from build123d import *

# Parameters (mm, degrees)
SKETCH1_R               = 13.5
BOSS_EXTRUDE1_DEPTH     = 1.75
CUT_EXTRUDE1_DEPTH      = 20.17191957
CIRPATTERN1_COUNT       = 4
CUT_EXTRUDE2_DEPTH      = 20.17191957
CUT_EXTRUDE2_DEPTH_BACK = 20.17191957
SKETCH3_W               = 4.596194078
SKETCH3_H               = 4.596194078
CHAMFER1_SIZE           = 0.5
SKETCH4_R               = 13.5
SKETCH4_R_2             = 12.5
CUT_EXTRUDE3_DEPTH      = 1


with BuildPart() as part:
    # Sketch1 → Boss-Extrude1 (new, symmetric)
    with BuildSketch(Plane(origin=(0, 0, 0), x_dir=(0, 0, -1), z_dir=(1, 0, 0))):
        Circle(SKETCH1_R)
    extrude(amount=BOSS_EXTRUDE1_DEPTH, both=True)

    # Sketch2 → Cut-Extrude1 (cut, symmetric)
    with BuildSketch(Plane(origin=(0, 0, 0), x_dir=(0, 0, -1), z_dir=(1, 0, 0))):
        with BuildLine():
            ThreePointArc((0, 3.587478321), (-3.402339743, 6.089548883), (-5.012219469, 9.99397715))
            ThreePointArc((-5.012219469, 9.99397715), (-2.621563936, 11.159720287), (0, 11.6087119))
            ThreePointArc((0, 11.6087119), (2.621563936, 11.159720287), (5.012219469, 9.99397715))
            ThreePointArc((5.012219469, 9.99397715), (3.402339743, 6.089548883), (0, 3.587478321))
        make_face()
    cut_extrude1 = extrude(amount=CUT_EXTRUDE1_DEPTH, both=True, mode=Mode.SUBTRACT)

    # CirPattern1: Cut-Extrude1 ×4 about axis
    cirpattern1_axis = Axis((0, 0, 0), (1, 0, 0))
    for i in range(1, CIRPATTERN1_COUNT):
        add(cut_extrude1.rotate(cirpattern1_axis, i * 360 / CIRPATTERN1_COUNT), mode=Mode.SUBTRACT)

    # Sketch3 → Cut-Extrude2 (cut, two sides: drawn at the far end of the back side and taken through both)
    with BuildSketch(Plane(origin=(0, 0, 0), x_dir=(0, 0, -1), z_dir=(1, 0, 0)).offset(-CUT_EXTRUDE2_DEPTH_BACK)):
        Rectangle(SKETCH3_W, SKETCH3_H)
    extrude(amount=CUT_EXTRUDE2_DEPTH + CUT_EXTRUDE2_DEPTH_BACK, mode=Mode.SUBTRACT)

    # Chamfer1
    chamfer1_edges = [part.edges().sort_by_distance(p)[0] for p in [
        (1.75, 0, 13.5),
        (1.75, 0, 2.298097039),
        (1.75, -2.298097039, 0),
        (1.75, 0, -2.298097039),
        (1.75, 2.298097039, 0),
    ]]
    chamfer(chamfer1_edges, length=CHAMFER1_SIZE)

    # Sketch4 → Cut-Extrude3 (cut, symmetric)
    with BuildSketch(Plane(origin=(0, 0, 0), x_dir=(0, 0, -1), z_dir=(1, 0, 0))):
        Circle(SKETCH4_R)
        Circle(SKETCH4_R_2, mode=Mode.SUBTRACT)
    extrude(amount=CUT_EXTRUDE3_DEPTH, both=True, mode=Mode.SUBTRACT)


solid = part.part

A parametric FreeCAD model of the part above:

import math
import FreeCAD as App
import Part
import Sketcher
from FreeCAD import Vector


def edges_at(feature, points):
    """Names of the edges that pass closest to the given points."""
    edges = feature.Shape.Edges
    near = lambda p: min(range(len(edges)), key=lambda i: edges[i].distToShape(Part.Vertex(*p))[0])
    return sorted({f"Edge{near(p) + 1}" for p in points})

doc = App.newDocument("Part")
params = doc.addObject("Spreadsheet::Sheet", "Params")
for row, (alias, value) in enumerate([
    ("sketch1_diameter", "27 mm"),
    ("pad1_length", "3.5 mm"),
    ("pocket1_length", "40.343839 mm"),
    ("chamfer_size", "0.5 mm"),
    ("sketch4_diameter", "27 mm"),
    ("sketch4_diameter2", "25 mm"),
    ("pocket3_length", "2 mm"),
], start=1):
    params.set(f"A{row}", alias)
    params.set(f"B{row}", "=" + value)
    params.setAlias(f"B{row}", alias)

body = doc.addObject("PartDesign::Body", "Body")

# Sketch on YZ plane
sketch1 = body.newObject("Sketcher::SketchObject", "Sketch")
sketch1.AttachmentSupport = (doc.getObject("YZ_Plane"), [""])
sketch1.MapMode = "FlatFace"
sketch1.addGeometry(Part.Circle(Vector(0, 0, 0), Vector(0, 0, 1), 14), False)
sketch1.addConstraint([
    Sketcher.Constraint("Coincident", 0, 3, -1, 1),
    Sketcher.Constraint("Diameter", 0, 27.0),
])
sketch1.setExpression("Constraints[1]", "Params.sketch1_diameter")
pad1 = body.newObject("PartDesign::Pad", "Pad")
pad1.Profile = sketch1
pad1.setExpression("Length", "Params.pad1_length")
pad1.Midplane = True

# Sketch on YZ plane
sketch2 = body.newObject("Sketcher::SketchObject", "Sketch001")
sketch2.AttachmentSupport = (doc.getObject("YZ_Plane"), [""])
sketch2.MapMode = "FlatFace"
sketch2.addGeometry([
    Part.ArcOfCircle(Part.Circle(Vector(10.918729, -2.770202, 0), Vector(0, 0, 1), 7.837171), math.radians(96.776437), math.radians(159.300317)),
    Part.ArcOfCircle(Part.Circle(Vector(10.918729, 2.770202, 0), Vector(0, 0, 1), 7.837171), math.radians(-159.300317), math.radians(-96.776437)),
    Part.ArcOfCircle(Part.Circle(Vector(2.217962, 0.25911, 0), Vector(0, 0, 1), 9.394324), math.radians(-34.133185), math.radians(-1.580505)),
    Part.ArcOfCircle(Part.Circle(Vector(2.217962, -0.25911, 0), Vector(0, 0, 1), 9.394324), math.radians(1.580505), math.radians(34.133185)),
], False)
sketch2.addConstraint([
    Sketcher.Constraint("Coincident", 0, 2, 1, 1),
    Sketcher.Constraint("Coincident", 1, 2, 2, 1),
    Sketcher.Constraint("Coincident", 2, 2, 3, 1),
    Sketcher.Constraint("Coincident", 3, 2, 0, 1),
    Sketcher.Constraint("Equal", 0, 1),
    Sketcher.Constraint("Equal", 2, 3),
    Sketcher.Constraint("Symmetric", 0, 3, 1, 3, -1),
    Sketcher.Constraint("Symmetric", 2, 3, 3, 3, -1),
    Sketcher.Constraint("Radius", 0, 7.837171),
    Sketcher.Constraint("Radius", 2, 9.394324),
    Sketcher.Constraint("DistanceX", 0, 2, 1, 2, 6.406499),
    Sketcher.Constraint("DistanceX", -1, 1, 0, 3, 10.918729),
    Sketcher.Constraint("DistanceX", -1, 1, 2, 3, 2.217962),
    Sketcher.Constraint("DistanceY", -1, 1, 2, 3, 0.25911),
])
pocket1 = body.newObject("PartDesign::Pocket", "Pocket")
pocket1.Profile = sketch2
pocket1.setExpression("Length", "Params.pocket1_length")
pocket1.Midplane = True
doc.recompute()

polarpattern = body.newObject("PartDesign::PolarPattern", "PolarPattern")
polarpattern.Originals = [pocket1]
polarpattern.Axis = (doc.getObject("X_Axis"), [""])
polarpattern.Angle = 360
polarpattern.Occurrences = 4
body.Tip = polarpattern

# Sketch on YZ plane
sketch3 = body.newObject("Sketcher::SketchObject", "Sketch002")
sketch3.AttachmentSupport = (doc.getObject("YZ_Plane"), [""])
sketch3.MapMode = "FlatFace"
sketch3.addGeometry([
    Part.LineSegment(Vector(2.3, 2.3, 0), Vector(-2.3, 2.3, 0)),
    Part.LineSegment(Vector(-2.3, 2.3, 0), Vector(-2.3, -2.3, 0)),
    Part.LineSegment(Vector(-2.3, -2.3, 0), Vector(2.3, -2.3, 0)),
    Part.LineSegment(Vector(2.3, -2.3, 0), Vector(2.3, 2.3, 0)),
], False)
sketch3.addConstraint([
    Sketcher.Constraint("Coincident", 0, 2, 1, 1),
    Sketcher.Constraint("Coincident", 1, 2, 2, 1),
    Sketcher.Constraint("Coincident", 2, 2, 3, 1),
    Sketcher.Constraint("Coincident", 3, 2, 0, 1),
    Sketcher.Constraint("Horizontal", 0),
    Sketcher.Constraint("Vertical", 1),
    Sketcher.Constraint("Horizontal", 2),
    Sketcher.Constraint("Vertical", 3),
    Sketcher.Constraint("Symmetric", 0, 2, 2, 2, -1, 1),
    Sketcher.Constraint("Equal", 2, 1),
    Sketcher.Constraint("DistanceX", 0, 2, 0, 1, 4.596194),
])
pocket2 = body.newObject("PartDesign::Pocket", "Pocket001")
pocket2.Profile = sketch3
pocket2.Type = "ThroughAll"
pocket2.Midplane = True
doc.recompute()

chamfer = body.newObject("PartDesign::Chamfer", "Chamfer")
chamfer.Base = (pocket2, edges_at(pocket2, [
    (1.75, 0, 13.5),
    (1.75, 0, 2.298),
    (1.75, -2.298, 0),
    (1.75, 0, -2.298),
    (1.75, 2.298, 0),
]))
chamfer.setExpression("Size", "Params.chamfer_size")

# Sketch on YZ plane
sketch4 = body.newObject("Sketcher::SketchObject", "Sketch003")
sketch4.AttachmentSupport = (doc.getObject("YZ_Plane"), [""])
sketch4.MapMode = "FlatFace"
sketch4.addGeometry([
    Part.Circle(Vector(0, 0, 0), Vector(0, 0, 1), 14),
    Part.Circle(Vector(0, 0, 0), Vector(0, 0, 1), 12),
], False)
sketch4.addConstraint([
    Sketcher.Constraint("Coincident", 0, 3, -1, 1),
    Sketcher.Constraint("Coincident", 1, 3, -1, 1),
    Sketcher.Constraint("Diameter", 0, 27.0),
    Sketcher.Constraint("Diameter", 1, 25.0),
])
sketch4.setExpression("Constraints[2]", "Params.sketch4_diameter")
sketch4.setExpression("Constraints[3]", "Params.sketch4_diameter2")
pocket3 = body.newObject("PartDesign::Pocket", "Pocket002")
pocket3.Profile = sketch4
pocket3.setExpression("Length", "Params.pocket3_length")
pocket3.Midplane = True

doc.recompute()
